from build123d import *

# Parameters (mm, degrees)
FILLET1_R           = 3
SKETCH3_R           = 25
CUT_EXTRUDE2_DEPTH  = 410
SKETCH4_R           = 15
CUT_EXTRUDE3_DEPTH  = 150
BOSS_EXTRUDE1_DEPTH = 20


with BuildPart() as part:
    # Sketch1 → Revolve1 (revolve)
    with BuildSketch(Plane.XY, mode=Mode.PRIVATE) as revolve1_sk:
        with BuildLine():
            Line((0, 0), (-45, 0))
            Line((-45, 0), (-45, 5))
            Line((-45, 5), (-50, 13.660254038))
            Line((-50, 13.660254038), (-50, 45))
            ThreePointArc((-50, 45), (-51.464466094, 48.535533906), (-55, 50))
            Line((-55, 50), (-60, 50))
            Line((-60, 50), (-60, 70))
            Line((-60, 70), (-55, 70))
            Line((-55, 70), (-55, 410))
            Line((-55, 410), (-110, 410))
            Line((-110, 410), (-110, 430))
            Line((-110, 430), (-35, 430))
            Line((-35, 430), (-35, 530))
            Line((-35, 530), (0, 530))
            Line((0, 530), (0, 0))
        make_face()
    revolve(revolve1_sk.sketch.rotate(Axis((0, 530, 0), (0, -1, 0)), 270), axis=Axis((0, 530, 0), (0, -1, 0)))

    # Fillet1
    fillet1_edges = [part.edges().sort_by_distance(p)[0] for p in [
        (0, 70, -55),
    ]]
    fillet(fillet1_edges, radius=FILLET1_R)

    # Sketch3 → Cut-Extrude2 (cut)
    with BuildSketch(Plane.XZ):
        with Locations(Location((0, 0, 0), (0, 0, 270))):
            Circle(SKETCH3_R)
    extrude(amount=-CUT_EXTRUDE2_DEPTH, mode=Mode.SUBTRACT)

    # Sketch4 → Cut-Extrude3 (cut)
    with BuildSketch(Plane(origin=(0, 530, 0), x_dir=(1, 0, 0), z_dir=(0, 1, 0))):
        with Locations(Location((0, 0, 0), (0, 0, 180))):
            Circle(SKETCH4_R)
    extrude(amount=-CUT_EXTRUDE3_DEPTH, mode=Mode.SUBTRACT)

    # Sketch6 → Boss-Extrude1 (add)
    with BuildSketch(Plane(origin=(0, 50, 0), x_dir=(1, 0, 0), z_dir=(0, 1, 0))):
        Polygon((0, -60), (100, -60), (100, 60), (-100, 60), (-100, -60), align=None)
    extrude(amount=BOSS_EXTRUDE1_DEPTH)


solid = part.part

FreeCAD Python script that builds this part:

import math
import FreeCAD as App
import Part
import Sketcher

V = App.Vector
Q = App.Units.Quantity


def edges_at(feature, points):
    """Names of the edges that pass closest to the given points."""
    edges = feature.Shape.Edges
    near = lambda p: min(range(len(edges)), key=lambda i: edges[i].distToShape(Part.Vertex(*p))[0])
    return sorted({f"Edge{near(p) + 1}" for p in points})

doc = App.newDocument("Part")
body = doc.addObject("PartDesign::Body", "Body")

# Sketch on XY plane
sketch1 = body.newObject("Sketcher::SketchObject", "Sketch")
sketch1.AttachmentSupport = (doc.getObject("XY_Plane"), [""])
sketch1.MapMode = "FlatFace"
sketch1.addGeometry([
    Part.LineSegment(V(-45, 0, 0), V(0, 0, 0)),  # 0
    Part.LineSegment(V(0, 0, 0), V(0, 530, 0)),  # 1
    Part.LineSegment(V(0, 530, 0), V(-35, 530, 0)),  # 2
    Part.LineSegment(V(-35, 530, 0), V(-35, 430, 0)),  # 3
    Part.LineSegment(V(-35, 430, 0), V(-110, 430, 0)),  # 4
    Part.LineSegment(V(-110, 430, 0), V(-110, 410, 0)),  # 5
    Part.LineSegment(V(-110, 410, 0), V(-55, 410, 0)),  # 6
    Part.LineSegment(V(-55, 410, 0), V(-55, 70, 0)),  # 7
    Part.LineSegment(V(-55, 70, 0), V(-60, 70, 0)),  # 8
    Part.LineSegment(V(-60, 70, 0), V(-60, 50, 0)),  # 9
    Part.LineSegment(V(-60, 50, 0), V(-55, 50, 0)),  # 10
    Part.ArcOfCircle(Part.Circle(V(-55, 45, 0), V(0, 0, 1), 5), math.radians(0), math.radians(90)),  # 11
    Part.LineSegment(V(-50, 45, 0), V(-50, 14, 0)),  # 12
    Part.LineSegment(V(-50, 14, 0), V(-45, 5, 0)),  # 13
    Part.LineSegment(V(-45, 5, 0), V(-45, 0, 0)),  # 14
], False)
sketch1.addConstraint([
    Sketcher.Constraint("Coincident", 0, 2, 1, 1),
    Sketcher.Constraint("Coincident", 1, 2, 2, 1),
    Sketcher.Constraint("Coincident", 2, 2, 3, 1),
    Sketcher.Constraint("Coincident", 3, 2, 4, 1),
    Sketcher.Constraint("Coincident", 4, 2, 5, 1),
    Sketcher.Constraint("Coincident", 5, 2, 6, 1),
    Sketcher.Constraint("Coincident", 6, 2, 7, 1),
    Sketcher.Constraint("Coincident", 7, 2, 8, 1),
    Sketcher.Constraint("Coincident", 8, 2, 9, 1),
    Sketcher.Constraint("Coincident", 9, 2, 10, 1),
    Sketcher.Constraint("Tangent", 10, 2, 11, 2),
    Sketcher.Constraint("Tangent", 11, 1, 12, 1),
    Sketcher.Constraint("Coincident", 12, 2, 13, 1),
    Sketcher.Constraint("Coincident", 13, 2, 14, 1),
    Sketcher.Constraint("Coincident", 14, 2, 0, 1),
    Sketcher.Constraint("Horizontal", 0),
    Sketcher.Constraint("Vertical", 1),
    Sketcher.Constraint("Horizontal", 2),
    Sketcher.Constraint("Vertical", 3),
    Sketcher.Constraint("Horizontal", 4),
    Sketcher.Constraint("Vertical", 5),
    Sketcher.Constraint("Horizontal", 6),
    Sketcher.Constraint("Vertical", 7),
    Sketcher.Constraint("Horizontal", 8),
    Sketcher.Constraint("Vertical", 9),
    Sketcher.Constraint("Horizontal", 10),
    Sketcher.Constraint("Vertical", 12),
    Sketcher.Constraint("Vertical", 14),
    Sketcher.Constraint("Coincident", 0, 2, -1, 1),
    Sketcher.Constraint("Vertical", 11, 3, 6, 2),
    Sketcher.Constraint("Equal", 5, 9),
    Sketcher.Constraint("Equal", 10, 14),
    Sketcher.Constraint("Radius", 11, Q("5 mm")),
    Sketcher.Constraint("DistanceX", 0, 1, 0, 2, Q("45 mm")),
    Sketcher.Constraint("DistanceX", 2, 2, 2, 1, Q("35 mm")),
    Sketcher.Constraint("DistanceX", 4, 2, 4, 1, Q("75 mm")),
    Sketcher.Constraint("DistanceX", 6, 1, 6, 2, Q("55 mm")),
    Sketcher.Constraint("DistanceX", 8, 2, 8, 1, Q("5 mm")),
    Sketcher.Constraint("DistanceY", 1, 1, 1, 2, Q("530 mm")),
    Sketcher.Constraint("DistanceY", 3, 2, 3, 1, Q("100 mm")),
    Sketcher.Constraint("DistanceY", 5, 2, 5, 1, Q("20 mm")),
    Sketcher.Constraint("DistanceY", 7, 2, 7, 1, Q("340 mm")),
    Sketcher.Constraint("Angle", 13, Q("-60 deg")),
])
revolution = body.newObject("PartDesign::Revolution", "Revolution")
revolution.Profile = sketch1
revolution.ReferenceAxis = (sketch1, ["V_Axis"])
revolution.Angle = 360
doc.recompute()

fillet = body.newObject("PartDesign::Fillet", "Fillet")
fillet.Base = (revolution, edges_at(revolution, [(0, 70, -55)]))
fillet.Radius = 3

# Sketch on XZ plane
sketch2 = body.newObject("Sketcher::SketchObject", "Sketch001")
sketch2.AttachmentSupport = (doc.getObject("XZ_Plane"), [""])
sketch2.MapMode = "FlatFace"
sketch2.addGeometry(Part.Circle(V(0, 0, 0), V(0, 0, 1), 25), False)
sketch2.addConstraint([
    Sketcher.Constraint("Coincident", 0, 3, -1, 1),
    Sketcher.Constraint("Diameter", 0, Q("50 mm")),
])
pocket1 = body.newObject("PartDesign::Pocket", "Pocket")
pocket1.Profile = sketch2
pocket1.Length = 410

# Sketch on XZ plane
sketch3 = body.newObject("Sketcher::SketchObject", "Sketch002")
sketch3.AttachmentSupport = (doc.getObject("XZ_Plane"), [""])
sketch3.MapMode = "FlatFace"
sketch3.AttachmentOffset = App.Placement(V(0, 0, -530), App.Rotation())
sketch3.addGeometry(Part.Circle(V(0, 0, 0), V(0, 0, 1), 15), False)
sketch3.addConstraint([
    Sketcher.Constraint("Coincident", 0, 3, -1, 1),
    Sketcher.Constraint("Diameter", 0, Q("30 mm")),
])
pocket2 = body.newObject("PartDesign::Pocket", "Pocket001")
pocket2.Profile = sketch3
pocket2.Length = 150
pocket2.Reversed = True

# Sketch on XZ plane
sketch4 = body.newObject("Sketcher::SketchObject", "Sketch003")
sketch4.AttachmentSupport = (doc.getObject("XZ_Plane"), [""])
sketch4.MapMode = "FlatFace"
sketch4.AttachmentOffset = App.Placement(V(0, 0, -50), App.Rotation())
sketch4.addGeometry([
    Part.LineSegment(V(100, 60, 0), V(100, -60, 0)),
    Part.LineSegment(V(100, -60, 0), V(-100, -60, 0)),
    Part.LineSegment(V(-100, -60, 0), V(-100, 60, 0)),
    Part.LineSegment(V(-100, 60, 0), V(100, 60, 0)),
], False)
sketch4.addConstraint([
    Sketcher.Constraint("Coincident", 0, 2, 1, 1),
    Sketcher.Constraint("Coincident", 1, 2, 2, 1),
    Sketcher.Constraint("Coincident", 2, 2, 3, 1),
    Sketcher.Constraint("Coincident", 3, 2, 0, 1),
    Sketcher.Constraint("Vertical", 0),
    Sketcher.Constraint("Horizontal", 1),
    Sketcher.Constraint("Vertical", 2),
    Sketcher.Constraint("Horizontal", 3),
    Sketcher.Constraint("Symmetric", 0, 2, 2, 2, -1, 1),
    Sketcher.Constraint("DistanceX", 1, 2, 1, 1, Q("200 mm")),
    Sketcher.Constraint("DistanceY", 0, 2, 0, 1, Q("120 mm")),
])
pad1 = body.newObject("PartDesign::Pad", "Pad")
pad1.Profile = sketch4
pad1.Length = 20
pad1.Reversed = True

doc.recompute()
